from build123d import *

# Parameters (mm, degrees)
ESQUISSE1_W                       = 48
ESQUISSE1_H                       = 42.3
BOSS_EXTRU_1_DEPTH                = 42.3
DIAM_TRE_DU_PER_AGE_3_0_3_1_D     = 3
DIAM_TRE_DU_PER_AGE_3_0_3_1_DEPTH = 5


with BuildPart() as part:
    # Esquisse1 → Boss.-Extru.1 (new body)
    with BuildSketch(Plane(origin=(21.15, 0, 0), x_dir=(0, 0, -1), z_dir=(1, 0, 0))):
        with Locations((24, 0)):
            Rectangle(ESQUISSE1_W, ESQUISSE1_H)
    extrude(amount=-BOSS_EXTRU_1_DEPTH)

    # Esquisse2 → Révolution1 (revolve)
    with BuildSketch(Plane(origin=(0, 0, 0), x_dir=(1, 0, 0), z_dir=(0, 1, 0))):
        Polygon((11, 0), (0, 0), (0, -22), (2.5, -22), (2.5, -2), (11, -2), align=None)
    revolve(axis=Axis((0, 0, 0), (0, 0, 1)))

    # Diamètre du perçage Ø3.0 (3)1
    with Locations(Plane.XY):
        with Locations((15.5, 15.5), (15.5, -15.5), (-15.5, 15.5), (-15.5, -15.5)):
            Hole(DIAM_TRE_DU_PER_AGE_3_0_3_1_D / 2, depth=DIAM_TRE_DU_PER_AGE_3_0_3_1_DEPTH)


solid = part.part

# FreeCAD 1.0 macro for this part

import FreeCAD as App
import Part
import Sketcher
from FreeCAD import Vector


def add_polygon(sketch, points):
    """Adds a closed chain of lines whose ends are joined by coincident constraints."""
    first, n = sketch.GeometryCount, len(points)
    for a, b in zip(points, points[1:] + points[:1]):
        sketch.addGeometry(Part.LineSegment(App.Vector(*a, 0), App.Vector(*b, 0)), False)
    for i in range(n):
        sketch.addConstraint(Sketcher.Constraint("Coincident", first + i, 2, first + (i + 1) % n, 1))

doc = App.newDocument("Part")
body = doc.addObject("PartDesign::Body", "Body")

# Sketch on YZ plane
sketch1 = doc.addObject("Sketcher::SketchObject", "Sketch")
body.addObject(sketch1)
sketch1.AttachmentSupport = (doc.YZ_Plane, [""])
sketch1.MapMode = "FlatFace"
sketch1.AttachmentOffset = App.Placement(Vector(0, 0, 21.15), App.Rotation())
add_polygon(sketch1, [(21, 0), (-21, 0), (-21, -48), (21, -48)])  # lines 0-3
sketch1.addConstraint([
    Sketcher.Constraint("Horizontal", 0),
    Sketcher.Constraint("Vertical", 1),
    Sketcher.Constraint("Horizontal", 2),
    Sketcher.Constraint("Vertical", 3),
    Sketcher.Constraint("Symmetric", 0, 2, 3, 2, -1, 1),
    Sketcher.Constraint("DistanceY", 1, 2, 1, 1, 48.0),
    Sketcher.Constraint("DistanceX", 0, 2, 0, 1, 42.3),
])
pad1 = doc.addObject("PartDesign::Pad", "Pad")
body.addObject(pad1)
pad1.Profile = sketch1
pad1.Length = 42.3
pad1.Reversed = True

# Sketch on XZ plane
sketch2 = doc.addObject("Sketcher::SketchObject", "Sketch001")
body.addObject(sketch2)
sketch2.AttachmentSupport = (doc.XZ_Plane, [""])
sketch2.MapMode = "FlatFace"
add_polygon(sketch2, [(11, 0), (0, 0), (0, 22), (2.5, 22), (2.5, 2), (11, 2)])  # lines 0-5
sketch2.addConstraint([
    Sketcher.Constraint("Horizontal", 0),
    Sketcher.Constraint("Vertical", 1),
    Sketcher.Constraint("Horizontal", 2),
    Sketcher.Constraint("Vertical", 3),
    Sketcher.Constraint("Horizontal", 4),
    Sketcher.Constraint("Vertical", 5),
    Sketcher.Constraint("Coincident", 0, 2, -1, 1),
    Sketcher.Constraint("DistanceX", 0, 2, 0, 1, 11.0),
    Sketcher.Constraint("DistanceY", 1, 1, 1, 2, 22.0),
    Sketcher.Constraint("DistanceY", 3, 2, 3, 1, 20.0),
    Sketcher.Constraint("DistanceX", 2, 1, 2, 2, 2.5),
])
revolution = doc.addObject("PartDesign::Revolution", "Revolution")
body.addObject(revolution)
revolution.Profile = sketch2
revolution.ReferenceAxis = (sketch2, ["V_Axis"])
revolution.Angle = 360

# Sketch on XY plane
sketch3 = doc.addObject("Sketcher::SketchObject", "Sketch002")
body.addObject(sketch3)
sketch3.AttachmentSupport = (doc.XY_Plane, [""])
sketch3.MapMode = "FlatFace"
sketch3.addGeometry([
    Part.Circle(Vector(15.5, 15.5, 0), Vector(0, 0, 1), 1.5),
    Part.Circle(Vector(15.5, -15.5, 0), Vector(0, 0, 1), 1.5),
    Part.Circle(Vector(-15.5, 15.5, 0), Vector(0, 0, 1), 1.5),
    Part.Circle(Vector(-15.5, -15.5, 0), Vector(0, 0, 1), 1.5),
], False)
sketch3.addConstraint([
    Sketcher.Constraint("Equal", 0, 1),
    Sketcher.Constraint("Equal", 1, 2),
    Sketcher.Constraint("Equal", 2, 3),
    Sketcher.Constraint("Symmetric", 1, 3, 2, 3, -1, 1),
    Sketcher.Constraint("Symmetric", 0, 3, 3, 3, -1, 1),
    Sketcher.Constraint("Symmetric", 0, 3, 2, 3, -2),
    Sketcher.Constraint("Diameter", 0, 3.0),
    Sketcher.Constraint("DistanceY", 1, 3, 0, 3, 31.0),
    Sketcher.Constraint("DistanceX", 2, 3, 0, 3, 31.0),
])
doc.recompute()
hole = doc.addObject("PartDesign::Hole", "Hole")
body.addObject(hole)
hole.Profile = sketch3
hole.ThreadType = "None"
hole.Diameter = 3
hole.DepthType = "Dimension"
hole.Depth = 5
hole.DrillPoint = "Flat"

doc.recompute()
